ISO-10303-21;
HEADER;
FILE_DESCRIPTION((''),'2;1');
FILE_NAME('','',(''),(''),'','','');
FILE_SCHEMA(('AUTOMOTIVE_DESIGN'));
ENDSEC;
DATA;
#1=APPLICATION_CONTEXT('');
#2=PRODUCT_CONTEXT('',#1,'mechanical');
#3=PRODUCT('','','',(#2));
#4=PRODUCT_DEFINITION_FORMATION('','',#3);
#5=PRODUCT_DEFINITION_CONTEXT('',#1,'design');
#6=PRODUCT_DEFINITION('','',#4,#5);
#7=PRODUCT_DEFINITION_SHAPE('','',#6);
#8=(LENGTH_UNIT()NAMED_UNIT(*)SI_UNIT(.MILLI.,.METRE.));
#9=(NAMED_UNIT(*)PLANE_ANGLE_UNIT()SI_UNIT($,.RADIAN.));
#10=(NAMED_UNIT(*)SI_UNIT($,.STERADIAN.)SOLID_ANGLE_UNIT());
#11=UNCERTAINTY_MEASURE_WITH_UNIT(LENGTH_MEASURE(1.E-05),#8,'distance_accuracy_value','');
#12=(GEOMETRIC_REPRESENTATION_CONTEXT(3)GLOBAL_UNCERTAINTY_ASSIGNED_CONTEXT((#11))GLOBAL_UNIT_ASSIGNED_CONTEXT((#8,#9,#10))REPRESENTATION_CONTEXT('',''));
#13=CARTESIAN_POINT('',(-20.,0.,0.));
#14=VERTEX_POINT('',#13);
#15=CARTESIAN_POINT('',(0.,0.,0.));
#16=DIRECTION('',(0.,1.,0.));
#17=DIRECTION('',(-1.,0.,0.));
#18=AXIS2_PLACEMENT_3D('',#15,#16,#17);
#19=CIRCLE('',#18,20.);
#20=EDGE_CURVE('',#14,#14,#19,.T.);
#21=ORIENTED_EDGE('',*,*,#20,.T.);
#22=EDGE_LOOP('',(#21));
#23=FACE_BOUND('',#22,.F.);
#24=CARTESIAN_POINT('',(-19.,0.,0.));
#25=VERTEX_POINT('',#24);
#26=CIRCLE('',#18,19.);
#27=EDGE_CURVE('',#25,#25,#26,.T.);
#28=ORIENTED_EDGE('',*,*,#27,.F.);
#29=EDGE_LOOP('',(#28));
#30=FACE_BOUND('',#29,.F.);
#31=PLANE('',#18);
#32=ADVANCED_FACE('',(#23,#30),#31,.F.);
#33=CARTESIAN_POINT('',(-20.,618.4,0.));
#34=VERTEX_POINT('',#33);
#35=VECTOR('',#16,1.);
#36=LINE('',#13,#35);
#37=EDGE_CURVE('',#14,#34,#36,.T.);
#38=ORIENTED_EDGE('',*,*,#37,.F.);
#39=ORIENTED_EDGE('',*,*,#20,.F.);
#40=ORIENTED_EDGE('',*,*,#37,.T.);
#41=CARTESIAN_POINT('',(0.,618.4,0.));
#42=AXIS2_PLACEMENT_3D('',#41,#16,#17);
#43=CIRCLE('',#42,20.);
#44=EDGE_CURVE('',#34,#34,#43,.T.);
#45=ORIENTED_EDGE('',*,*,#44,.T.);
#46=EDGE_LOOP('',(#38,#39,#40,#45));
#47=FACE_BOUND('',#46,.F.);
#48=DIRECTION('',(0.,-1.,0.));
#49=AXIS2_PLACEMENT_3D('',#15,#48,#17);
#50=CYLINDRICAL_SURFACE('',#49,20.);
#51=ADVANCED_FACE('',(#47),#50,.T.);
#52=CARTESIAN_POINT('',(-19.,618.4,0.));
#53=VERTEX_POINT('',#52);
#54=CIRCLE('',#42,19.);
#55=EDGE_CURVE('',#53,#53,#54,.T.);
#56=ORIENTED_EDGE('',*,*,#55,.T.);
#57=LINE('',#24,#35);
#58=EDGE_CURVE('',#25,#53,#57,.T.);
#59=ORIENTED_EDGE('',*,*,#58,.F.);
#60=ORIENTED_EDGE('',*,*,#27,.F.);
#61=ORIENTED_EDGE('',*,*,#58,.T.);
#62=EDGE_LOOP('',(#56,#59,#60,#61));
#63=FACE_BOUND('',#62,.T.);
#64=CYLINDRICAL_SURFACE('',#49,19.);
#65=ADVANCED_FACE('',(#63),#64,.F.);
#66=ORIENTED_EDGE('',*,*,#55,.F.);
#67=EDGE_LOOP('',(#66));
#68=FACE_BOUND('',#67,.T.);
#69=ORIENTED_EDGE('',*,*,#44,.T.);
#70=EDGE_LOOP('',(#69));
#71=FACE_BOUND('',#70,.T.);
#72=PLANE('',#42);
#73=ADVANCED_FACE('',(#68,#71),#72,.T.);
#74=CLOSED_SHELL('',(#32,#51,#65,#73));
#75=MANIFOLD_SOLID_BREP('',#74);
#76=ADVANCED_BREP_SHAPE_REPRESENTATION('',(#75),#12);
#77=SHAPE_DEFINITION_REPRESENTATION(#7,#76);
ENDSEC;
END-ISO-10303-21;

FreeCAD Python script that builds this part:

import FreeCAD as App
import Part
import Sketcher
Q = App.Units.Quantity

doc = App.newDocument("Part")
params = doc.addObject("Spreadsheet::Sheet", "Params")
for row, (alias, value) in enumerate([
    ("sketch1_diameter", "40 mm"),
    ("sketch1_diameter2", "38 mm"),
    ("pad1_length", "618.4 mm"),
], start=1):
    params.set(f"A{row}", alias)
    params.set(f"B{row}", "=" + value)
    params.setAlias(f"B{row}", alias)

body = doc.addObject("PartDesign::Body", "Body")

sketch1 = doc.addObject("Sketcher::SketchObject", "Sketch")
body.addObject(sketch1)
sketch1.AttachmentSupport = (doc.XZ_Plane, [""])
sketch1.MapMode = "FlatFace"
sketch1.addGeometry([
    Part.Circle(App.Vector(0, 0, 0), App.Vector(0, 0, 1), 20),
    Part.Circle(App.Vector(0, 0, 0), App.Vector(0, 0, 1), 19),
], False)
sketch1.addConstraint([
    Sketcher.Constraint("Coincident", 0, 3, -1, 1),
    Sketcher.Constraint("Coincident", 1, 3, -1, 1),
    Sketcher.Constraint("Diameter", 0, Q("40 mm")),
    Sketcher.Constraint("Diameter", 1, Q("38 mm")),
])
sketch1.setExpression("Constraints[2]", "Params.sketch1_diameter")
sketch1.setExpression("Constraints[3]", "Params.sketch1_diameter2")
pad1 = doc.addObject("PartDesign::Pad", "Pad")
body.addObject(pad1)
pad1.Profile = sketch1
pad1.setExpression("Length", "Params.pad1_length")
pad1.Reversed = True

doc.recompute()
